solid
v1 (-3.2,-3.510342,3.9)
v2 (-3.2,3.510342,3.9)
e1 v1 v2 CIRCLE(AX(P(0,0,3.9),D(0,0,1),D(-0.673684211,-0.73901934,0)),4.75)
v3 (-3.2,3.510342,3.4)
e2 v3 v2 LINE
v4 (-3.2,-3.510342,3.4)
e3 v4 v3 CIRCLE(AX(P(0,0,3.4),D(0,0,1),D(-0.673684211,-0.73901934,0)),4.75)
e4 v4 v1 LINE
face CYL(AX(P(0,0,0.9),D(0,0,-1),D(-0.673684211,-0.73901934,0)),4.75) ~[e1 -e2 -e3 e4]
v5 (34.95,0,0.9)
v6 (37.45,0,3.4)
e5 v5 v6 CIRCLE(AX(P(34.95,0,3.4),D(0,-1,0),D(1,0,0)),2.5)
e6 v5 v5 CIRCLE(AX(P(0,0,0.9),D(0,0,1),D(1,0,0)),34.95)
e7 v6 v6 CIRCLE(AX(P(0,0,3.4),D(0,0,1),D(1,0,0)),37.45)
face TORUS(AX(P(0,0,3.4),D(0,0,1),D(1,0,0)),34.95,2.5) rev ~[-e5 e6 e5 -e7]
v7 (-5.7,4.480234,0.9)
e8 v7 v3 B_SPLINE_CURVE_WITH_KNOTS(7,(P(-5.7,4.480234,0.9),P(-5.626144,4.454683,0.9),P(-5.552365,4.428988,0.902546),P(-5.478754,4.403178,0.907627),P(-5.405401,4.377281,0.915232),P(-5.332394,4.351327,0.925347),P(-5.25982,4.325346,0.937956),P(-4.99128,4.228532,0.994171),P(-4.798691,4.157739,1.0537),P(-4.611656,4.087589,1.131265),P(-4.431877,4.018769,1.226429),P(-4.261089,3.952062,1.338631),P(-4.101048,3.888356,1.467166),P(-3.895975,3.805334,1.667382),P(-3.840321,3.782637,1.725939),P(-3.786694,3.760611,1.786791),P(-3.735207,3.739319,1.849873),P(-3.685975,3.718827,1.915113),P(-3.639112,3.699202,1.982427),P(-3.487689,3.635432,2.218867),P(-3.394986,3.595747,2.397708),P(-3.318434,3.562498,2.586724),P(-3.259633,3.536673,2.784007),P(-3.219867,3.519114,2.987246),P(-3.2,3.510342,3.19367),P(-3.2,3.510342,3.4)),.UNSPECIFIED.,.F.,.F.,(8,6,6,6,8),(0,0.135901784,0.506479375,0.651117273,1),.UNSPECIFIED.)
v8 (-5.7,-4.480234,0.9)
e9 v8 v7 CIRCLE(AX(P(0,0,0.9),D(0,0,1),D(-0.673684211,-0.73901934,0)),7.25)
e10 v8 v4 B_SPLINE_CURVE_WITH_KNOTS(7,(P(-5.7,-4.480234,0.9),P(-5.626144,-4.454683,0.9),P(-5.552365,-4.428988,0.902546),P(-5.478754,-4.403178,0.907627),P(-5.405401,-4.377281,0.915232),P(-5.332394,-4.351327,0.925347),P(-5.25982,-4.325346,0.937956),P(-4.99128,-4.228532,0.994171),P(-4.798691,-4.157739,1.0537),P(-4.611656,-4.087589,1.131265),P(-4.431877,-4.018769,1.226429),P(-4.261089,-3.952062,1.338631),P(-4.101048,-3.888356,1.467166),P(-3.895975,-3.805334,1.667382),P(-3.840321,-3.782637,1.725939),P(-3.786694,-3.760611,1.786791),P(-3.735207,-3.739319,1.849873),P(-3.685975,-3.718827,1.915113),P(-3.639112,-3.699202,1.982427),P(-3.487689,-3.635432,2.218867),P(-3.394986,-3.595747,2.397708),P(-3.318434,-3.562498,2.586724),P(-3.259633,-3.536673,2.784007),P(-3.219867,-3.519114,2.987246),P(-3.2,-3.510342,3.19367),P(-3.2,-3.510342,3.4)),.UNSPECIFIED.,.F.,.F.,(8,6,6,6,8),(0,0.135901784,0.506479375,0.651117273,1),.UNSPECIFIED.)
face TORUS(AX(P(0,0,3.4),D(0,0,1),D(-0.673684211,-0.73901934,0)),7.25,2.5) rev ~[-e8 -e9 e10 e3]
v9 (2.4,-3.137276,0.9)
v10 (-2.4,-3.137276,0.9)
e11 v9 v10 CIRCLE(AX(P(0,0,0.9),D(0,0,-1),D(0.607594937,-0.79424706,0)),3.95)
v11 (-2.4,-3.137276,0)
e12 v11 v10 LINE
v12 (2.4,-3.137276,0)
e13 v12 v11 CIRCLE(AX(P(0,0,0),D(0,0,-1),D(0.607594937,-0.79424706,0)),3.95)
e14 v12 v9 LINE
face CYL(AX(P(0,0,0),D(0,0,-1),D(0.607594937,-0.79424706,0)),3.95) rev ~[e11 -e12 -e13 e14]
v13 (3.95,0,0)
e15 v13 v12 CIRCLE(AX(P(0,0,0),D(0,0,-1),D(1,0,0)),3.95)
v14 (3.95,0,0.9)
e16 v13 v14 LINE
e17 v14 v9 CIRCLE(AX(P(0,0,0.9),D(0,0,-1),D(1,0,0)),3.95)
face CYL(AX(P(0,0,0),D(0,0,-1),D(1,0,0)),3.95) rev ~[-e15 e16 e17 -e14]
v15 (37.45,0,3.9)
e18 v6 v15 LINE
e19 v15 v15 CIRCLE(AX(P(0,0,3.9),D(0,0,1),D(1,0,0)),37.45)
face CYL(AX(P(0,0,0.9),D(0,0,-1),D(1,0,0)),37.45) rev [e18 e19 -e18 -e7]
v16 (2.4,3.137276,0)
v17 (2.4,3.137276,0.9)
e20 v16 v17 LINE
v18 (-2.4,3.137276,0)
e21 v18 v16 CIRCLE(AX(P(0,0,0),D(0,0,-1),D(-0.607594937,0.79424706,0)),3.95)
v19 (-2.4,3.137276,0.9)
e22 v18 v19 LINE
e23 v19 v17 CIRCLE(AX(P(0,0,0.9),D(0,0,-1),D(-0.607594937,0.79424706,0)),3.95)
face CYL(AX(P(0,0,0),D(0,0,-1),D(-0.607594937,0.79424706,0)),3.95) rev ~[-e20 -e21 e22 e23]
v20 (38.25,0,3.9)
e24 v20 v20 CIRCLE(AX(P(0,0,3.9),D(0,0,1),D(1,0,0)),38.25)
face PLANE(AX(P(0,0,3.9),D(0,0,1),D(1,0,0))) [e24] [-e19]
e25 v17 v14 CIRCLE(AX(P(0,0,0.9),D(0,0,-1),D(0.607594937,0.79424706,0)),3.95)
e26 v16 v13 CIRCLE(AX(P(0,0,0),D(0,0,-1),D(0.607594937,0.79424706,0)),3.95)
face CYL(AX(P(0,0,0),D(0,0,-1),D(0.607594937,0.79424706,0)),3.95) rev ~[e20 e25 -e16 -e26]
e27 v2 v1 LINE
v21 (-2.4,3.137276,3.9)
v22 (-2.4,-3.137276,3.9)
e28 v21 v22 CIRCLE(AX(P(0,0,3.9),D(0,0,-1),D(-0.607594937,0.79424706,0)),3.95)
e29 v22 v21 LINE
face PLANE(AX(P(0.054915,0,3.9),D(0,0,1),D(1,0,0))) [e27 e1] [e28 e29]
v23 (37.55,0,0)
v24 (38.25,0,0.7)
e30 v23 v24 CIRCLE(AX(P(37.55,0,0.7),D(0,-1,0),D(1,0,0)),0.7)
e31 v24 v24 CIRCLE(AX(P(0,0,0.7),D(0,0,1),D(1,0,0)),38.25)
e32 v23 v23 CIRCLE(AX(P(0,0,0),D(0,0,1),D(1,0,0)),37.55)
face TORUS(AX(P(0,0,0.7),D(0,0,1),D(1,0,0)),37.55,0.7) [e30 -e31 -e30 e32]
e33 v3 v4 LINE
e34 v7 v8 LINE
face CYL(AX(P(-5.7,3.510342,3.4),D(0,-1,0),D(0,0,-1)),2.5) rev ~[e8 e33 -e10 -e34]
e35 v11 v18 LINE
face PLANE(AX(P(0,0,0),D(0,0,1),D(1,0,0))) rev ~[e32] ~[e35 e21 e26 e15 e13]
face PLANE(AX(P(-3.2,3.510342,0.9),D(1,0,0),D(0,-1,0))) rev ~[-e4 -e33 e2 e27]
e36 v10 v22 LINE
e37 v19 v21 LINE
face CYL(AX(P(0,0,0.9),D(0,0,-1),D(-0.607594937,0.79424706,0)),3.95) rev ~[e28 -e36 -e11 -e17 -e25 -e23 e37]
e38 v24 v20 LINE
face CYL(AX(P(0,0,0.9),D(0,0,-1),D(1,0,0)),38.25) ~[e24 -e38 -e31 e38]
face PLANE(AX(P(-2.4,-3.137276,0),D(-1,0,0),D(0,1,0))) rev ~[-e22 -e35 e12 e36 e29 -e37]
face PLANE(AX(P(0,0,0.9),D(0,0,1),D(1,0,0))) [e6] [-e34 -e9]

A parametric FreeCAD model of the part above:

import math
import FreeCAD as App
import Part
import Sketcher

V = App.Vector


def edges_at(feature, points):
    """Names of the edges that pass closest to the given points."""
    edges = feature.Shape.Edges
    near = lambda p: min(range(len(edges)), key=lambda i: edges[i].distToShape(Part.Vertex(*p))[0])
    return sorted({f"Edge{near(p) + 1}" for p in points})

doc = App.newDocument("Part")
body = doc.addObject("PartDesign::Body", "Body")

sketch1 = body.newObject("Sketcher::SketchObject", "Sketch")
sketch1.AttachmentSupport = (doc.getObject("XY_Plane"), [""])
sketch1.MapMode = "FlatFace"
sketch1.addGeometry(Part.Circle(V(0, 0, 0), V(0, 0, 1), 38.2), False)
sketch1.addGeometry(Part.ArcOfCircle(Part.Circle(V(0, 0, 0), V(0, 0, 1), 4), math.radians(53), math.radians(127)), False)
sketch1.addGeometry(Part.ArcOfCircle(Part.Circle(V(0, 0, 0), V(0, 0, 1), 4), math.radians(0), math.radians(53)), False)
sketch1.addGeometry(Part.ArcOfCircle(Part.Circle(V(0, 0, 0), V(0, 0, 1), 4), math.radians(-53), math.radians(0)), False)
sketch1.addGeometry(Part.ArcOfCircle(Part.Circle(V(0, 0, 0), V(0, 0, 1), 4), math.radians(-127), math.radians(-53)), False)
sketch1.addGeometry(Part.LineSegment(V(-2.4, -3.1, 0), V(-2.4, 3.1, 0)), False)
sketch1.addConstraint(Sketcher.Constraint("Tangent", 1, 1, 2, 2))
sketch1.addConstraint(Sketcher.Constraint("Tangent", 2, 1, 3, 2))
sketch1.addConstraint(Sketcher.Constraint("Tangent", 3, 1, 4, 2))
sketch1.addConstraint(Sketcher.Constraint("Coincident", 4, 1, 5, 1))
sketch1.addConstraint(Sketcher.Constraint("Coincident", 5, 2, 1, 2))
sketch1.addConstraint(Sketcher.Constraint("Vertical", 5))
sketch1.addConstraint(Sketcher.Constraint("Coincident", 0, 3, -1, 1))
sketch1.addConstraint(Sketcher.Constraint("Coincident", 1, 3, -1, 1))
sketch1.addConstraint(Sketcher.Constraint("Coincident", 3, 3, -1, 1))
sketch1.addConstraint(Sketcher.Constraint("Equal", 3, 4))
sketch1.addConstraint(Sketcher.Constraint("PointOnObject", 2, 1, -1))
sketch1.addConstraint(Sketcher.Constraint("Horizontal", 3, 1, 4, 1))
sketch1.addConstraint(Sketcher.Constraint("Horizontal", 1, 1, 5, 2))
sketch1.addConstraint(Sketcher.Constraint("Diameter", 0, 76.5))
sketch1.addConstraint(Sketcher.Constraint("Radius", 1, 3.95))
sketch1.addConstraint(Sketcher.Constraint("DistanceX", -1, 1, 1, 1, 2.4))
pad1 = body.newObject("PartDesign::Pad", "Pad")
pad1.Profile = sketch1
pad1.Length = 0.9

sketch2 = body.newObject("Sketcher::SketchObject", "Sketch001")
sketch2.AttachmentSupport = (doc.getObject("XY_Plane"), [""])
sketch2.MapMode = "FlatFace"
sketch2.AttachmentOffset = App.Placement(V(0, 0, 0.9), App.Rotation())
sketch2.addGeometry(Part.Circle(V(0, 0, 0), V(0, 0, 1), 38.2), False)
sketch2.addGeometry(Part.Circle(V(0, 0, 0), V(0, 0, 1), 37.5), False)
sketch2.addGeometry(Part.LineSegment(V(-3.2, 3.5, 0), V(-3.2, -3.5, 0)), False)
sketch2.addGeometry(Part.ArcOfCircle(Part.Circle(V(0, 0, 0), V(0, 0, 1), 4.8), math.radians(-132), math.radians(132)), False)
sketch2.addGeometry(Part.LineSegment(V(-2.4, -3.1, 0), V(-2.4, 3.1, 0)), False)
sketch2.addGeometry(Part.ArcOfCircle(Part.Circle(V(0, 0, 0), V(0, 0, 1), 4), math.radians(-127), math.radians(127)), False)
sketch2.addConstraint(Sketcher.Constraint("Coincident", 2, 1, 3, 2))
sketch2.addConstraint(Sketcher.Constraint("Coincident", 3, 1, 2, 2))
sketch2.addConstraint(Sketcher.Constraint("Coincident", 4, 1, 5, 1))
sketch2.addConstraint(Sketcher.Constraint("Coincident", 5, 2, 4, 2))
sketch2.addConstraint(Sketcher.Constraint("Vertical", 2))
sketch2.addConstraint(Sketcher.Constraint("Vertical", 4))
sketch2.addConstraint(Sketcher.Constraint("Coincident", 0, 3, -1, 1))
sketch2.addConstraint(Sketcher.Constraint("Coincident", 1, 3, -1, 1))
sketch2.addConstraint(Sketcher.Constraint("Coincident", 3, 3, -1, 1))
sketch2.addConstraint(Sketcher.Constraint("Coincident", 5, 3, -1, 1))
sketch2.addConstraint(Sketcher.Constraint("Diameter", 0, 76.5))
sketch2.addConstraint(Sketcher.Constraint("Diameter", 1, 74.9))
sketch2.addConstraint(Sketcher.Constraint("Radius", 3, 4.75))
sketch2.addConstraint(Sketcher.Constraint("Radius", 5, 3.95))
sketch2.addConstraint(Sketcher.Constraint("DistanceX", 2, 1, -1, 1, 3.2))
sketch2.addConstraint(Sketcher.Constraint("DistanceX", 4, 1, -1, 1, 2.4))
pad2 = body.newObject("PartDesign::Pad", "Pad001")
pad2.Profile = sketch2
pad2.Length = 3
doc.recompute()

fillet = body.newObject("PartDesign::Fillet", "Fillet")
fillet.Base = (pad2, edges_at(pad2, [(-37.45, 0, 0.9), (-3.2, 0, 0.9), (4.75, 0, 0.9)]))
fillet.Radius = 2.5
doc.recompute()

fillet2 = body.newObject("PartDesign::Fillet", "Fillet001")
fillet2.Base = (fillet, edges_at(fillet, [(-38.25, 0, 0)]))
fillet2.Radius = 0.7

doc.recompute()
